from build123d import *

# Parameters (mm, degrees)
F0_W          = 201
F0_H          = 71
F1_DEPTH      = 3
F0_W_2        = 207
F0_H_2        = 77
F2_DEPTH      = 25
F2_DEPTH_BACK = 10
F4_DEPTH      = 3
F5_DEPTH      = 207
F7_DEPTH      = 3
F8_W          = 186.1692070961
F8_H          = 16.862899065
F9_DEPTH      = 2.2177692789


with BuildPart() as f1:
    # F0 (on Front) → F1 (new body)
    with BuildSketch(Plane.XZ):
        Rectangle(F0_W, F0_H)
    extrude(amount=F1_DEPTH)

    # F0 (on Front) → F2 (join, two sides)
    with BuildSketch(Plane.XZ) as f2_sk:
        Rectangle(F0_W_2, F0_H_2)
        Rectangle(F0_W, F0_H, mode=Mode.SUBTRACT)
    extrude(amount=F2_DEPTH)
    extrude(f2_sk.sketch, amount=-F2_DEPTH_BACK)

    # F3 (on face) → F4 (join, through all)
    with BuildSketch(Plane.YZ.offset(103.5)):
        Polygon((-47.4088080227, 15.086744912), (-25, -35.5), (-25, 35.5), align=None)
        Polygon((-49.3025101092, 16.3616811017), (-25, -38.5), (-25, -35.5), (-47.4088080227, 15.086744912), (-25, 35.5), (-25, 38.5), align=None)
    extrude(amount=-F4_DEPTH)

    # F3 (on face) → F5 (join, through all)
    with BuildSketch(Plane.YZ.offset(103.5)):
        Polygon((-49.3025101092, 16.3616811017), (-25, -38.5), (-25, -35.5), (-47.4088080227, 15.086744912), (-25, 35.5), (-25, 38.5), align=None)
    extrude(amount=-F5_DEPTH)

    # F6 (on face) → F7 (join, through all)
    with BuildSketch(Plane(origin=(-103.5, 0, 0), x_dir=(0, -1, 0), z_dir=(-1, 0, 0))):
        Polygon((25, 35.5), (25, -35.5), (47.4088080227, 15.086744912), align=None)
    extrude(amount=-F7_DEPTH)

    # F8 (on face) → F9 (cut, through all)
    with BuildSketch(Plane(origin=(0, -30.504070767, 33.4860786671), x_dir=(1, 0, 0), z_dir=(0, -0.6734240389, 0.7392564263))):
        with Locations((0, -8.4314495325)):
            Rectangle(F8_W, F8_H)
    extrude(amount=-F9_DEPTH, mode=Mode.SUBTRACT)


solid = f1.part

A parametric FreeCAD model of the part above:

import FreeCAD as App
import Part
import Sketcher

V = App.Vector


def add_polygon(sketch, points):
    """Adds a closed chain of lines whose ends are joined by coincident constraints."""
    first, n = sketch.GeometryCount, len(points)
    for a, b in zip(points, points[1:] + points[:1]):
        sketch.addGeometry(Part.LineSegment(App.Vector(*a, 0), App.Vector(*b, 0)), False)
    for i in range(n):
        sketch.addConstraint(Sketcher.Constraint("Coincident", first + i, 2, first + (i + 1) % n, 1))

doc = App.newDocument("Part")
body = doc.addObject("PartDesign::Body", "Body")

sketch1 = body.newObject("Sketcher::SketchObject", "Sketch")
sketch1.AttachmentSupport = (doc.getObject("XZ_Plane"), [""])
sketch1.MapMode = "FlatFace"
add_polygon(sketch1, [(-100.5, 35.5), (-100.5, -35.5), (100.5, -35.5), (100.5, 35.5)])
sketch1.addConstraint([
    Sketcher.Constraint("Vertical", 0),
    Sketcher.Constraint("Horizontal", 1),
    Sketcher.Constraint("Vertical", 2),
    Sketcher.Constraint("Horizontal", 3),
    Sketcher.Constraint("Symmetric", 0, 2, 2, 2, -1, 1),
    Sketcher.Constraint("DistanceX", 1, 1, 1, 2, 201.0),
    Sketcher.Constraint("DistanceY", 0, 2, 0, 1, 71.0),
])
pad1 = body.newObject("PartDesign::Pad", "Pad")
pad1.Profile = sketch1
pad1.Length = 3

sketch2 = body.newObject("Sketcher::SketchObject", "Sketch001")
sketch2.AttachmentSupport = (doc.getObject("XZ_Plane"), [""])
sketch2.MapMode = "FlatFace"
add_polygon(sketch2, [(-103.5, 38.5), (-103.5, -38.5), (103.5, -38.5), (103.5, 38.5)])
add_polygon(sketch2, [(100.5, -35.5), (-100.5, -35.5), (-100.5, 35.5), (100.5, 35.5)])
sketch2.addConstraint([
    Sketcher.Constraint("Vertical", 0),
    Sketcher.Constraint("Horizontal", 1),
    Sketcher.Constraint("Vertical", 2),
    Sketcher.Constraint("Horizontal", 3),
    Sketcher.Constraint("Horizontal", 4),
    Sketcher.Constraint("Vertical", 5),
    Sketcher.Constraint("Horizontal", 6),
    Sketcher.Constraint("Vertical", 7),
    Sketcher.Constraint("Symmetric", 0, 2, 2, 2, -1, 1),
    Sketcher.Constraint("Symmetric", 4, 2, 6, 2, -1, 1),
    Sketcher.Constraint("DistanceX", 1, 1, 1, 2, 207.0),
    Sketcher.Constraint("DistanceX", 4, 2, 4, 1, 201.0),
    Sketcher.Constraint("DistanceY", 0, 2, 0, 1, 77.0),
    Sketcher.Constraint("DistanceY", 5, 1, 5, 2, 71.0),
])
pad2 = body.newObject("PartDesign::Pad", "Pad001")
pad2.Profile = sketch2
pad2.Type = "TwoLengths"
pad2.Length = 25
pad2.Length2 = 10

sketch3 = body.newObject("Sketcher::SketchObject", "Sketch002")
sketch3.AttachmentSupport = (doc.getObject("YZ_Plane"), [""])
sketch3.MapMode = "FlatFace"
sketch3.AttachmentOffset = App.Placement(V(0, 0, 103.5), App.Rotation())
add_polygon(sketch3, [(-25, 38.5), (-49.30251, 16.361681), (-25, -38.5)])
sketch3.addConstraint([
    Sketcher.Constraint("Vertical", 2),
    Sketcher.Constraint("DistanceY", 2, 1, 2, 2, 77.0),
    Sketcher.Constraint("DistanceX", 1, 2, -1, 1, 25.0),
    Sketcher.Constraint("DistanceY", 1, 2, -1, 1, 38.5),
    Sketcher.Constraint("DistanceX", 0, 2, -1, 1, 49.30251),
    Sketcher.Constraint("DistanceY", -1, 1, 0, 2, 16.361681),
])
pad3 = body.newObject("PartDesign::Pad", "Pad002")
pad3.Profile = sketch3
pad3.Length = 3
pad3.Reversed = True

sketch4 = body.newObject("Sketcher::SketchObject", "Sketch003")
sketch4.AttachmentSupport = (doc.getObject("YZ_Plane"), [""])
sketch4.MapMode = "FlatFace"
sketch4.AttachmentOffset = App.Placement(V(0, 0, 103.5), App.Rotation())
add_polygon(sketch4, [(-49.30251, 16.361681), (-25, -38.5), (-25, -35.5), (-47.408808, 15.086745), (-25, 35.5), (-25, 38.5)])
sketch4.addConstraint([
    Sketcher.Constraint("Vertical", 1),
    Sketcher.Constraint("Vertical", 4),
    Sketcher.Constraint("Symmetric", 1, 2, 3, 2, -1),
    Sketcher.Constraint("Parallel", 0, 2),
    Sketcher.Constraint("Parallel", 3, 5),
    Sketcher.Constraint("Equal", 1, 4),
    Sketcher.Constraint("DistanceY", 1, 1, 1, 2, 3.0),
    Sketcher.Constraint("DistanceX", 0, 2, -1, 1, 25.0),
    Sketcher.Constraint("DistanceY", 1, 2, 3, 2, 71.0),
    Sketcher.Constraint("DistanceX", 2, 2, -1, 1, 47.408808),
    Sketcher.Constraint("DistanceY", -1, 1, 5, 2, 16.361681),
])
pad4 = body.newObject("PartDesign::Pad", "Pad003")
pad4.Profile = sketch4
pad4.Length = 207
pad4.Reversed = True

sketch5 = body.newObject("Sketcher::SketchObject", "Sketch004")
sketch5.AttachmentSupport = (doc.getObject("YZ_Plane"), [""])
sketch5.MapMode = "FlatFace"
sketch5.AttachmentOffset = App.Placement(V(0, 0, -103.5), App.Rotation())
add_polygon(sketch5, [(-25, 35.5), (-25, -35.5), (-47.408808, 15.086745)])
sketch5.addConstraint([
    Sketcher.Constraint("Vertical", 0),
    Sketcher.Constraint("DistanceY", 0, 2, 0, 1, 71.0),
    Sketcher.Constraint("DistanceX", 0, 2, -1, 1, 25.0),
    Sketcher.Constraint("DistanceY", 0, 2, -1, 1, 35.5),
    Sketcher.Constraint("DistanceX", 1, 2, -1, 1, 47.408808),
    Sketcher.Constraint("Distance", 1, 55.327872),
])
pad5 = body.newObject("PartDesign::Pad", "Pad004")
pad5.Profile = sketch5
pad5.Length = 3

sketch6 = body.newObject("Sketcher::SketchObject", "Sketch005")
sketch6.Placement = App.Placement(V(0, -30.504071, 33.486079), App.Rotation(V(1, 0, 0), V(0, 0.739256426, 0.673424039), V(0, -0.673424039, 0.739256426), "ZXY"))
add_polygon(sketch6, [(-93.084604, 0), (-93.084604, -16.862899), (93.084604, -16.862899), (93.084604, 0)])
sketch6.addConstraint([
    Sketcher.Constraint("Vertical", 0),
    Sketcher.Constraint("Horizontal", 1),
    Sketcher.Constraint("Vertical", 2),
    Sketcher.Constraint("Horizontal", 3),
    Sketcher.Constraint("Symmetric", 2, 2, 3, 2, -1, 1),
    Sketcher.Constraint("DistanceY", 0, 2, 0, 1, 16.862899),
    Sketcher.Constraint("DistanceX", 1, 1, 1, 2, 186.169207),
])
pocket1 = body.newObject("PartDesign::Pocket", "Pocket")
pocket1.Profile = sketch6
pocket1.Length = 2.217769

doc.recompute()
